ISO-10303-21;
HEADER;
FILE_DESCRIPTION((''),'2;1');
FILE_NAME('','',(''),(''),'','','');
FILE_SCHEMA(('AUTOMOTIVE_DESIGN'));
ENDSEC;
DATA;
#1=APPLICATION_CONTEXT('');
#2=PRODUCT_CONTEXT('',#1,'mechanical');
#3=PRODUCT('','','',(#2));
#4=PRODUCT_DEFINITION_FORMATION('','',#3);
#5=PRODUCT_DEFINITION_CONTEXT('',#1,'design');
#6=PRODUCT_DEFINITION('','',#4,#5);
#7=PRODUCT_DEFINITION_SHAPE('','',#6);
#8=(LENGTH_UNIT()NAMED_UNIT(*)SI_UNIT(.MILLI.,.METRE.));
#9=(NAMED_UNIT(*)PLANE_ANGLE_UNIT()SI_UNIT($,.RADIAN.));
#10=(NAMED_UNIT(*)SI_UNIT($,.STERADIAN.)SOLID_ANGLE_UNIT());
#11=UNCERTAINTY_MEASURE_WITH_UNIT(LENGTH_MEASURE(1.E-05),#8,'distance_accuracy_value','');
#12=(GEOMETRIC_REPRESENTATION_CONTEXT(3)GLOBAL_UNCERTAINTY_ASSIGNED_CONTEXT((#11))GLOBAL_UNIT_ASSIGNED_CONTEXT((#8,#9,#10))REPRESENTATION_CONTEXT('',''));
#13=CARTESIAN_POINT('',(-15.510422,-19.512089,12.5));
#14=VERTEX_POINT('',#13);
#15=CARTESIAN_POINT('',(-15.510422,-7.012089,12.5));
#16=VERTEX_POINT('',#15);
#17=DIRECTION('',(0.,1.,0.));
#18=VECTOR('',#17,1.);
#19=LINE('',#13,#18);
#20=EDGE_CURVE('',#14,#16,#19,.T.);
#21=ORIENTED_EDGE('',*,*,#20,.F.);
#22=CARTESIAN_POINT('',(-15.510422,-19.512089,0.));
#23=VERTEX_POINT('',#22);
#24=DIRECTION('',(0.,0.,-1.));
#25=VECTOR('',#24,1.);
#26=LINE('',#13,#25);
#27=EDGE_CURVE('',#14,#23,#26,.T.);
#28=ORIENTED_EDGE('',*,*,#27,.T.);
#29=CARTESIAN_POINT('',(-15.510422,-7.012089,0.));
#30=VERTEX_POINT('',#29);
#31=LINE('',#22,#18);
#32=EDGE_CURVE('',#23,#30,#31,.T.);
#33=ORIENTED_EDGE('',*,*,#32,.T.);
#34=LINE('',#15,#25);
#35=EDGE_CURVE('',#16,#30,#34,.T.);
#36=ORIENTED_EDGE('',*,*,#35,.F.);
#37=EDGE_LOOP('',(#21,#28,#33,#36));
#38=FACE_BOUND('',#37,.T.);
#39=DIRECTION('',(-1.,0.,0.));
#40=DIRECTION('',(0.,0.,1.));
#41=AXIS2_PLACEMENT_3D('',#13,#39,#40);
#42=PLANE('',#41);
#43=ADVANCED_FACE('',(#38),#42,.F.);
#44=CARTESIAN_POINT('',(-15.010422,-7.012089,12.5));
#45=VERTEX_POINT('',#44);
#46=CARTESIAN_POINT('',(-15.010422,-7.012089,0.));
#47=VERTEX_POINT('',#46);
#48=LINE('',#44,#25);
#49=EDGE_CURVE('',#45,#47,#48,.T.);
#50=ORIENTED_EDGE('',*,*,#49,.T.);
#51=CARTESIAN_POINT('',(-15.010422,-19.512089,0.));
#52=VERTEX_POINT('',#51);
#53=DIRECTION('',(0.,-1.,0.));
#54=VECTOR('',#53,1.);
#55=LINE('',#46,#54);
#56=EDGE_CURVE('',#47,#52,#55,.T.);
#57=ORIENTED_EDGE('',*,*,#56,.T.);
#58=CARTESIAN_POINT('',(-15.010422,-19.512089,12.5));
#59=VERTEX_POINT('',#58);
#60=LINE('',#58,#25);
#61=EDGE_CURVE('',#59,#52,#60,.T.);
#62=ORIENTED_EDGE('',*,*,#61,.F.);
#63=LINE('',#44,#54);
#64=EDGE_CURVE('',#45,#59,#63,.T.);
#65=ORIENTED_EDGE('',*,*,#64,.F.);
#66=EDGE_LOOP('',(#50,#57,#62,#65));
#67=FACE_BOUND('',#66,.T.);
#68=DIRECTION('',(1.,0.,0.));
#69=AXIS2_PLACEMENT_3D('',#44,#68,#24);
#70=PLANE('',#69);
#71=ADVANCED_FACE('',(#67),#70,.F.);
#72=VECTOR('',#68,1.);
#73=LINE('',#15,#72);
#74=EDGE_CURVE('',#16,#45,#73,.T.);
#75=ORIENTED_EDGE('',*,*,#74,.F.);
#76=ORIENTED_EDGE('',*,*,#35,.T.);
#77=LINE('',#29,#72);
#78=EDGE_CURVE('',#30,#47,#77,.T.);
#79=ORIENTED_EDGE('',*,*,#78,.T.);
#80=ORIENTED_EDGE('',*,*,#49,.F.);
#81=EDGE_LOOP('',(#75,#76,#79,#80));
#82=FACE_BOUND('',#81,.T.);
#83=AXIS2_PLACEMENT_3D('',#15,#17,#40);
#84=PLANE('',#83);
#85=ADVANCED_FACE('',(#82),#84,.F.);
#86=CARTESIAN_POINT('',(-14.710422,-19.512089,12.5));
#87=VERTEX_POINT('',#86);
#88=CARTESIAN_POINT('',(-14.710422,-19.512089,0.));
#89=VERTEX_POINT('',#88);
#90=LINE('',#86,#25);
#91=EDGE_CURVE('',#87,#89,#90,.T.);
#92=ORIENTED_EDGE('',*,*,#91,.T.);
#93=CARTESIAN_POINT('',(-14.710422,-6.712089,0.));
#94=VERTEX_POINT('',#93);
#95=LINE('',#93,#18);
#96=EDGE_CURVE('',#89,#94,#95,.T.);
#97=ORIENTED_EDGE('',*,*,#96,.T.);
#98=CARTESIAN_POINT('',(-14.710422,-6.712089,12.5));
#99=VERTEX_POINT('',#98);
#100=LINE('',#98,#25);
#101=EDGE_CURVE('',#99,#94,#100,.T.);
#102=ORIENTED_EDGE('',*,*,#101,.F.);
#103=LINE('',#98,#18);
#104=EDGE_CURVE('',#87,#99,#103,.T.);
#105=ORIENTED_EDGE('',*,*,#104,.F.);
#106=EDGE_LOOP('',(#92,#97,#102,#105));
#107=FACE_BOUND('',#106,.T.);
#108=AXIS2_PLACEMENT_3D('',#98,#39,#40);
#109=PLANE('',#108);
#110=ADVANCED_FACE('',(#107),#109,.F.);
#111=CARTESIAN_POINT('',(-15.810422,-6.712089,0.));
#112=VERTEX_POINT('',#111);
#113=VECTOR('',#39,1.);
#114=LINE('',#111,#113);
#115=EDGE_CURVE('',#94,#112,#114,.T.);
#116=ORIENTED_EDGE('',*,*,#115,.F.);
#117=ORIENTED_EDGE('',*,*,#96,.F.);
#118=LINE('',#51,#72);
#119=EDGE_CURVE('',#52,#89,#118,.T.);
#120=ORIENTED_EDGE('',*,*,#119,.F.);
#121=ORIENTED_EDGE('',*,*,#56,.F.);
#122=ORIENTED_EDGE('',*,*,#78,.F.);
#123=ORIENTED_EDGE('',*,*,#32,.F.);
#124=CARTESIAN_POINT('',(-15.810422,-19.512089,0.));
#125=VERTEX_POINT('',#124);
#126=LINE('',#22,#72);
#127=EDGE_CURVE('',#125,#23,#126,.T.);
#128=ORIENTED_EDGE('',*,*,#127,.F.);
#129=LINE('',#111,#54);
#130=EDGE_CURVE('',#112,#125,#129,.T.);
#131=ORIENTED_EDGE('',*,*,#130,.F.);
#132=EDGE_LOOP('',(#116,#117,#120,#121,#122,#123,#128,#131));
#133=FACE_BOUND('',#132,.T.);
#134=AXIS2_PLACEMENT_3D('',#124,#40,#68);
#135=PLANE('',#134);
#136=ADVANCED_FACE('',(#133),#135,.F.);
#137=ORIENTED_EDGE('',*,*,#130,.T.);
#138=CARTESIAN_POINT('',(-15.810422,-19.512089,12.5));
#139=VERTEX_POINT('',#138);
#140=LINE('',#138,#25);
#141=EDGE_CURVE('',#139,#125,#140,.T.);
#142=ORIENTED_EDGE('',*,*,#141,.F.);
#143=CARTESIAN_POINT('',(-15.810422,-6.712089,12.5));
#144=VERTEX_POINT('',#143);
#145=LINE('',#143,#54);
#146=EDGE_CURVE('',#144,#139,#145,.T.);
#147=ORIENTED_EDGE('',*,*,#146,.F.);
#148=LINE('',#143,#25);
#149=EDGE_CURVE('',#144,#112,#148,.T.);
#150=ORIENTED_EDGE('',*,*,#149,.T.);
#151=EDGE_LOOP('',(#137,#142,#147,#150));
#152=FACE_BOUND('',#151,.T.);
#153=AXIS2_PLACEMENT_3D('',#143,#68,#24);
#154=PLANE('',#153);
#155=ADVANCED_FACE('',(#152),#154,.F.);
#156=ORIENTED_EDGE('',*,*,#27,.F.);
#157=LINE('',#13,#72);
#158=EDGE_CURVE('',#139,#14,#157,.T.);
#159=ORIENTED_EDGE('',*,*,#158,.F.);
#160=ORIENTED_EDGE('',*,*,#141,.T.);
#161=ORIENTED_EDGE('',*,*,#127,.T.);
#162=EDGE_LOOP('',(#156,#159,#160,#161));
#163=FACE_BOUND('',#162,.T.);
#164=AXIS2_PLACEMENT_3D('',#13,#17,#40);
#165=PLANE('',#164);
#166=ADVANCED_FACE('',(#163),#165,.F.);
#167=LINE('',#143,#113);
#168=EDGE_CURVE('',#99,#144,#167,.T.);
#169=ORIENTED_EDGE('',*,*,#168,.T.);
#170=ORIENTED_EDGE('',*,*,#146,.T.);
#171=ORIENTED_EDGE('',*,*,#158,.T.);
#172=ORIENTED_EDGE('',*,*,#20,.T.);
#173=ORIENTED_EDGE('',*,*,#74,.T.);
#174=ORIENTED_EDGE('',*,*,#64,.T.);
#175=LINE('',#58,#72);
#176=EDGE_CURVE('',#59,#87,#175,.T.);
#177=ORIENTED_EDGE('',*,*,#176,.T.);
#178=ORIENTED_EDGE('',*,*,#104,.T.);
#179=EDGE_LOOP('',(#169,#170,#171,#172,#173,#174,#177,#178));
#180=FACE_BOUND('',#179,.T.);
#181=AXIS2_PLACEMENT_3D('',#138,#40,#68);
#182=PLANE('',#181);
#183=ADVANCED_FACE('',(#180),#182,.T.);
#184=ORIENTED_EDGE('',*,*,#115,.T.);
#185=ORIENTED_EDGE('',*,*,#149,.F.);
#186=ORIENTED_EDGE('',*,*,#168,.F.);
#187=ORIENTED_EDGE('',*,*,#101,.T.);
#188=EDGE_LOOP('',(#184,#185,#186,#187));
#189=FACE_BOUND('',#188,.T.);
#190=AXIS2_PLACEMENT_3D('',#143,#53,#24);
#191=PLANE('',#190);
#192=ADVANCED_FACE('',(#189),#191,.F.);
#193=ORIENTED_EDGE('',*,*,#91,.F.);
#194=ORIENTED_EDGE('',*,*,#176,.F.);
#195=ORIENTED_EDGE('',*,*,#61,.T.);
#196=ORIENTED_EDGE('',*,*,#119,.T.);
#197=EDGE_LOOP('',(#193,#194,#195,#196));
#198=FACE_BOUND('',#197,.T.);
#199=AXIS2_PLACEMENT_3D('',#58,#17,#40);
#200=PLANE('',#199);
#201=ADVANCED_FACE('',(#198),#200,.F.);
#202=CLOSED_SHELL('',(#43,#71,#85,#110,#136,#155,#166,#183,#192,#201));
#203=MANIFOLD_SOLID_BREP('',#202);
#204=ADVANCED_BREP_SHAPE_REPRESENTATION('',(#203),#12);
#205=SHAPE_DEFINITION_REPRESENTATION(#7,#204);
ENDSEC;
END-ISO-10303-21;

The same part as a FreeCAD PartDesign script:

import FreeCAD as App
import Part
import Sketcher
from FreeCAD import Vector
Q = App.Units.Quantity


def add_polygon(sketch, points):
    """Adds a closed chain of lines whose ends are joined by coincident constraints."""
    first, n = sketch.GeometryCount, len(points)
    for a, b in zip(points, points[1:] + points[:1]):
        sketch.addGeometry(Part.LineSegment(App.Vector(*a, 0), App.Vector(*b, 0)), False)
    for i in range(n):
        sketch.addConstraint(Sketcher.Constraint("Coincident", first + i, 2, first + (i + 1) % n, 1))

doc = App.newDocument("Part")
body = doc.addObject("PartDesign::Body", "Body")

# Sketch on XY plane
sketch1 = doc.addObject("Sketcher::SketchObject", "Sketch")
body.addObject(sketch1)
sketch1.AttachmentSupport = (doc.XY_Plane, [""])
sketch1.MapMode = "FlatFace"
add_polygon(sketch1, [(-15.51, -19.51), (-15.51, -7.01), (-15.01, -7.01), (-15.01, -19.51), (-14.71, -19.51), (-14.71, -6.71), (-15.81, -6.71), (-15.81, -19.51)])  # lines 0-7
sketch1.addConstraint(Sketcher.Constraint("Vertical", 0))
sketch1.addConstraint(Sketcher.Constraint("Horizontal", 1))
sketch1.addConstraint(Sketcher.Constraint("Vertical", 2))
sketch1.addConstraint(Sketcher.Constraint("Horizontal", 3))
sketch1.addConstraint(Sketcher.Constraint("Vertical", 4))
sketch1.addConstraint(Sketcher.Constraint("Horizontal", 5))
sketch1.addConstraint(Sketcher.Constraint("Vertical", 6))
sketch1.addConstraint(Sketcher.Constraint("Horizontal", 7))
sketch1.addConstraint(Sketcher.Constraint("Horizontal", 3, 2, 6, 2))
sketch1.addConstraint(Sketcher.Constraint("Equal", 3, 7))
sketch1.addConstraint(Sketcher.Constraint("DistanceX", 1, 1, 1, 2, Q("0.5 mm")))
sketch1.addConstraint(Sketcher.Constraint("DistanceX", 3, 1, 3, 2, Q("0.3 mm")))
sketch1.addConstraint(Sketcher.Constraint("DistanceY", 0, 1, 0, 2, Q("12.5 mm")))
sketch1.addConstraint(Sketcher.Constraint("DistanceY", 4, 1, 4, 2, Q("12.8 mm")))
sketch1.addConstraint(Sketcher.Constraint("DistanceX", 0, 2, -1, 1, Q("15.510422 mm")))
sketch1.addConstraint(Sketcher.Constraint("DistanceY", 0, 2, -1, 1, Q("7.012089 mm")))
pad1 = doc.addObject("PartDesign::Pad", "Pad")
body.addObject(pad1)
pad1.Profile = sketch1
pad1.Length = 12.5

doc.recompute()
